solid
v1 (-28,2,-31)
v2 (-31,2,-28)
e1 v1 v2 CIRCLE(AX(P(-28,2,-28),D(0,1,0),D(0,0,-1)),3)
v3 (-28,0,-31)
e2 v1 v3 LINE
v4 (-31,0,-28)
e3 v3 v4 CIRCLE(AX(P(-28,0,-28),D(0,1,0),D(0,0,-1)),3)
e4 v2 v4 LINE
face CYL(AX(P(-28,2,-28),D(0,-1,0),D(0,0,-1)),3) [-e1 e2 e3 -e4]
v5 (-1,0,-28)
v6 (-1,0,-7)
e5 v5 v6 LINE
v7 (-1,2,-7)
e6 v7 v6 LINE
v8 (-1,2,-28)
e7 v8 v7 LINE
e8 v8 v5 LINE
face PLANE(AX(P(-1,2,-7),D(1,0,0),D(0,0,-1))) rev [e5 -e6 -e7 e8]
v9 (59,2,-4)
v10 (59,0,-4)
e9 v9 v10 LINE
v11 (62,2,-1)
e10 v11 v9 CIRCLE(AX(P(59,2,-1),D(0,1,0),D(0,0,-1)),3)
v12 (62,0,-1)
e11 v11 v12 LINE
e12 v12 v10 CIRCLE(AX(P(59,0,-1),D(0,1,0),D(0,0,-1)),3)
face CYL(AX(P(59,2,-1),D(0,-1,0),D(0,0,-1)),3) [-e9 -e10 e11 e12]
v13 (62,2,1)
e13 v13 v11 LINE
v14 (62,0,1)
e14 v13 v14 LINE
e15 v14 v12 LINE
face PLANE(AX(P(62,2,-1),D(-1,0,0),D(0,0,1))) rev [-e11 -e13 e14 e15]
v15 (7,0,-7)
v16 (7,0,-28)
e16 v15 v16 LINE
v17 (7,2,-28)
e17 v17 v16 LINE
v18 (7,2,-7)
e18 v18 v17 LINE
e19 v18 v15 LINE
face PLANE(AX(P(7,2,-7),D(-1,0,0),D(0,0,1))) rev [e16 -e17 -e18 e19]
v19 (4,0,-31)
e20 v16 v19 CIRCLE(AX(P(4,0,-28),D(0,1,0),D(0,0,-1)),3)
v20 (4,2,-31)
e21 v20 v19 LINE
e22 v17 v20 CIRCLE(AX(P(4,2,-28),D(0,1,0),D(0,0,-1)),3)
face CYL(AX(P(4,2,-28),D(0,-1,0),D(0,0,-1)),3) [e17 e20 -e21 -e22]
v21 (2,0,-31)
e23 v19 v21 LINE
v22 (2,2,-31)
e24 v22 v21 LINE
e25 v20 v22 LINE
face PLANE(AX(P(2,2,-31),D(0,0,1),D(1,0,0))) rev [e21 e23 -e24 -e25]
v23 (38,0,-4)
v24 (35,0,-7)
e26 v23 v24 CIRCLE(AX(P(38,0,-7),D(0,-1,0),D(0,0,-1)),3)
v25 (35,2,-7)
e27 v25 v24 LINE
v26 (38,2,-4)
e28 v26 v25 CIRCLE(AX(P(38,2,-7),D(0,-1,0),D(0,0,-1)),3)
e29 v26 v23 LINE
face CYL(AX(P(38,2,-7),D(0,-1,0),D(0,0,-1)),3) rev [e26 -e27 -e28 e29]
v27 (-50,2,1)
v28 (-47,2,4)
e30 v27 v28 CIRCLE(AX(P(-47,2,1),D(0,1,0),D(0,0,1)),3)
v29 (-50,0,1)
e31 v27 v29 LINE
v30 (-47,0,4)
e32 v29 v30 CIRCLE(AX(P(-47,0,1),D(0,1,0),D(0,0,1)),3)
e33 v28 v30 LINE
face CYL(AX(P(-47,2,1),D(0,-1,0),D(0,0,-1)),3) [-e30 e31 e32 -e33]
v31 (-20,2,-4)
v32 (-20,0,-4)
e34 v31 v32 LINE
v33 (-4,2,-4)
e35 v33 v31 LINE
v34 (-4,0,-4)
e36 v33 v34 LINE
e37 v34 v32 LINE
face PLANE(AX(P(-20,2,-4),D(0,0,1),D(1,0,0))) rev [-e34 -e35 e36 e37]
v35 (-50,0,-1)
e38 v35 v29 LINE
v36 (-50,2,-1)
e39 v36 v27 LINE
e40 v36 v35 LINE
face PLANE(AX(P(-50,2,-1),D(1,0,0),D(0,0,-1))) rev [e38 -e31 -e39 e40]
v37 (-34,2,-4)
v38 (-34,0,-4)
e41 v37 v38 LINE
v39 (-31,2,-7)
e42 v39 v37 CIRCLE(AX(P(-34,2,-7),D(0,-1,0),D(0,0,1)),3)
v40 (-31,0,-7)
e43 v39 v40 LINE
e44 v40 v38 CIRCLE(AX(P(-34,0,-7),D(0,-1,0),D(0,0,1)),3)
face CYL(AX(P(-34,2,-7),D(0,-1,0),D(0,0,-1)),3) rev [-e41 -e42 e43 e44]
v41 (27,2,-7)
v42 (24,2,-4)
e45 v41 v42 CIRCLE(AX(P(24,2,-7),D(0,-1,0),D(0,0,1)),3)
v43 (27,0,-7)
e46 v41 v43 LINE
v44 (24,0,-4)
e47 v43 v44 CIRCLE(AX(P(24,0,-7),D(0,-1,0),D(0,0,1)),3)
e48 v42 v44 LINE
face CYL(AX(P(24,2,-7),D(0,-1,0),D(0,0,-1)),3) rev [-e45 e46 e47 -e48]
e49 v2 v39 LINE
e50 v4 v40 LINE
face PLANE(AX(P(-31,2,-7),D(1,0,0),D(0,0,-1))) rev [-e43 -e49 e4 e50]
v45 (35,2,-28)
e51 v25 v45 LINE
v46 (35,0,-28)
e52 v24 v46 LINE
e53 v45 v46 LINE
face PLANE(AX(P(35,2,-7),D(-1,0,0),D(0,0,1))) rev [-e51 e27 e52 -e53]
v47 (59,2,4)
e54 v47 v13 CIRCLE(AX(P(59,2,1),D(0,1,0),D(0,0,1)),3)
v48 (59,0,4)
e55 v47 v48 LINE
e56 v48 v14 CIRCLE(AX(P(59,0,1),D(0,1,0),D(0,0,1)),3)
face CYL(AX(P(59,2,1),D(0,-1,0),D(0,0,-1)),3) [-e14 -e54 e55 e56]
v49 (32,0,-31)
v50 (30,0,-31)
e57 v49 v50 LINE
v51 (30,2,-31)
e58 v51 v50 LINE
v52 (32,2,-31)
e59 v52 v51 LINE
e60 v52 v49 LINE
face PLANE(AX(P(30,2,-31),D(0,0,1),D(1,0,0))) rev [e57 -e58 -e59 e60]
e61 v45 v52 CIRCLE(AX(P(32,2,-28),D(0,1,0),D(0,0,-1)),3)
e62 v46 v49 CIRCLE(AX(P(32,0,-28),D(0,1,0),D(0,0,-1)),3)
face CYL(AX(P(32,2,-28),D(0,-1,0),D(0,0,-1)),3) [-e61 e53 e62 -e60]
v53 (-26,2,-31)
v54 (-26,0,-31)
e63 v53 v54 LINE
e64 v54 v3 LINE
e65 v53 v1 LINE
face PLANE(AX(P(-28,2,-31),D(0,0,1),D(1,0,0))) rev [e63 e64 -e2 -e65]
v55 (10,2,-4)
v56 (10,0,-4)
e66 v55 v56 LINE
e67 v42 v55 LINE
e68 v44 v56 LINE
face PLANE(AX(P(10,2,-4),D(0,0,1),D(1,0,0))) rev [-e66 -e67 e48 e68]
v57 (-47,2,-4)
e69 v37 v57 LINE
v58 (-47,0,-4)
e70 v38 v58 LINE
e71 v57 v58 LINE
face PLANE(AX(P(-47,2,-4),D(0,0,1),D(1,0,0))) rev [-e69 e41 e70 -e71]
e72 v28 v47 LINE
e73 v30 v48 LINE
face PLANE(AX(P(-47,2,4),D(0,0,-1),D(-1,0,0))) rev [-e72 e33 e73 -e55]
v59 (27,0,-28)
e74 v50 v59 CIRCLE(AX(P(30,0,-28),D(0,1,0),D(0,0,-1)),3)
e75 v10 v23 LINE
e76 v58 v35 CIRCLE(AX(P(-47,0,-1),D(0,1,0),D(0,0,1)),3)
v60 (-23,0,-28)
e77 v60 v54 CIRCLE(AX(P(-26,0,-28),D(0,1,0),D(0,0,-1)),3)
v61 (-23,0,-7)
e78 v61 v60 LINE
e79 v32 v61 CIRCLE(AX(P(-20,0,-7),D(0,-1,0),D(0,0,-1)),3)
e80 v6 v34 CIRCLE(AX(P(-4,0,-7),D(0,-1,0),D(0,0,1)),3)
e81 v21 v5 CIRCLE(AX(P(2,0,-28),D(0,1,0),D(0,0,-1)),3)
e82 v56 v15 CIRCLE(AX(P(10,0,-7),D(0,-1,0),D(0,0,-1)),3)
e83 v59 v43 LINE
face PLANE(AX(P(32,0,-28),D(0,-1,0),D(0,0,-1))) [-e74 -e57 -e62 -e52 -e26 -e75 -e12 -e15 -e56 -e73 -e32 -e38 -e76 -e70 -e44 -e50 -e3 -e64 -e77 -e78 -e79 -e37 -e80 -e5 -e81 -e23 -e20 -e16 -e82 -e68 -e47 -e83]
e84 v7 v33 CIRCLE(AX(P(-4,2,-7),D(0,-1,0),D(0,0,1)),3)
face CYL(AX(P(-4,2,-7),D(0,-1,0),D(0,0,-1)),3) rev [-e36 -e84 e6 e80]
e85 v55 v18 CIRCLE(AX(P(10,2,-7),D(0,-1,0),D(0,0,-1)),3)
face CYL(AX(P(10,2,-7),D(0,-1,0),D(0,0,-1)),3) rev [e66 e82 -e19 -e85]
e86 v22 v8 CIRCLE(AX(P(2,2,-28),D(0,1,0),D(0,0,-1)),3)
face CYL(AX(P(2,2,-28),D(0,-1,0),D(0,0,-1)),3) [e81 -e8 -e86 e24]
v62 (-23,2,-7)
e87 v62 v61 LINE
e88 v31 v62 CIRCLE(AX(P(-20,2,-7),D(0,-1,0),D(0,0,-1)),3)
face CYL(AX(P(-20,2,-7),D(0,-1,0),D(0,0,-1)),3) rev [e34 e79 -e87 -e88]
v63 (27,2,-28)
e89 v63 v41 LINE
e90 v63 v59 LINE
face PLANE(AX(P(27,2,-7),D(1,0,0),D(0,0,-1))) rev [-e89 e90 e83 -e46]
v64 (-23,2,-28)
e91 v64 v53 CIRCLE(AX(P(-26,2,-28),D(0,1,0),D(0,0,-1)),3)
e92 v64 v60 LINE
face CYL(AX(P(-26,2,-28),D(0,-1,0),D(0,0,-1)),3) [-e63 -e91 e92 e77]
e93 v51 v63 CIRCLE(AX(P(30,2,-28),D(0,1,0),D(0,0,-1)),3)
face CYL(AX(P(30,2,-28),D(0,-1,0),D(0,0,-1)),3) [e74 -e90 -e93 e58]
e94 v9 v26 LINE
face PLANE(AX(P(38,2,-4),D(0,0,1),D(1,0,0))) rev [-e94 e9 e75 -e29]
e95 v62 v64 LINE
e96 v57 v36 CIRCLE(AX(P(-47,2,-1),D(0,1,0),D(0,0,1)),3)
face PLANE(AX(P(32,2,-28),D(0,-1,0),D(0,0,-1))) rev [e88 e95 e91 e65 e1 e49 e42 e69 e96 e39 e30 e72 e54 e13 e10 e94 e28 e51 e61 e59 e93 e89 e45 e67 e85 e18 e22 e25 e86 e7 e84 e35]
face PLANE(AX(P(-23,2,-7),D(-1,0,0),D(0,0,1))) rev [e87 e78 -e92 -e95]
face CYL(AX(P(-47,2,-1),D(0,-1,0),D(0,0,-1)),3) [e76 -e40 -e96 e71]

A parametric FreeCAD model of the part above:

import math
import FreeCAD as App
import Part
import Sketcher

doc = App.newDocument("Part")
body = doc.addObject("PartDesign::Body", "Body")

# Sketch on XZ plane
sketch1 = doc.addObject("Sketcher::SketchObject", "Sketch")
body.addObject(sketch1)
sketch1.AttachmentSupport = (doc.XZ_Plane, [""])
sketch1.MapMode = "FlatFace"
sketch1.addGeometry([
    Part.LineSegment(App.Vector(-4, -4, 0), App.Vector(-20, -4, 0)),  # 0
    Part.ArcOfCircle(Part.Circle(App.Vector(-20, -7, 0), App.Vector(0, 0, 1), 3), math.radians(90), math.radians(180)),  # 1
    Part.LineSegment(App.Vector(-23, -7, 0), App.Vector(-23, -28, 0)),  # 2
    Part.ArcOfCircle(Part.Circle(App.Vector(-26, -28, 0), App.Vector(0, 0, 1), 3), math.radians(-90), math.radians(0)),  # 3
    Part.LineSegment(App.Vector(-26, -31, 0), App.Vector(-28, -31, 0)),  # 4
    Part.ArcOfCircle(Part.Circle(App.Vector(-28, -28, 0), App.Vector(0, 0, 1), 3), math.radians(180), math.radians(270)),  # 5
    Part.LineSegment(App.Vector(-31, -28, 0), App.Vector(-31, -7, 0)),  # 6
    Part.ArcOfCircle(Part.Circle(App.Vector(-34, -7, 0), App.Vector(0, 0, 1), 3), math.radians(0), math.radians(90)),  # 7
    Part.LineSegment(App.Vector(-34, -4, 0), App.Vector(-47, -4, 0)),  # 8
    Part.ArcOfCircle(Part.Circle(App.Vector(-47, -1, 0), App.Vector(0, 0, 1), 3), math.radians(180), math.radians(270)),  # 9
    Part.LineSegment(App.Vector(-50, -1, 0), App.Vector(-50, 1, 0)),  # 10
    Part.ArcOfCircle(Part.Circle(App.Vector(-47, 1, 0), App.Vector(0, 0, 1), 3), math.radians(90), math.radians(180)),  # 11
    Part.LineSegment(App.Vector(-47, 4, 0), App.Vector(59, 4, 0)),  # 12
    Part.ArcOfCircle(Part.Circle(App.Vector(59, 1, 0), App.Vector(0, 0, 1), 3), math.radians(0), math.radians(90)),  # 13
    Part.LineSegment(App.Vector(62, 1, 0), App.Vector(62, -1, 0)),  # 14
    Part.ArcOfCircle(Part.Circle(App.Vector(59, -1, 0), App.Vector(0, 0, 1), 3), math.radians(-90), math.radians(0)),  # 15
    Part.LineSegment(App.Vector(59, -4, 0), App.Vector(38, -4, 0)),  # 16
    Part.ArcOfCircle(Part.Circle(App.Vector(38, -7, 0), App.Vector(0, 0, 1), 3), math.radians(90), math.radians(180)),  # 17
    Part.LineSegment(App.Vector(35, -7, 0), App.Vector(35, -28, 0)),  # 18
    Part.ArcOfCircle(Part.Circle(App.Vector(32, -28, 0), App.Vector(0, 0, 1), 3), math.radians(-90), math.radians(0)),  # 19
    Part.LineSegment(App.Vector(32, -31, 0), App.Vector(30, -31, 0)),  # 20
    Part.ArcOfCircle(Part.Circle(App.Vector(30, -28, 0), App.Vector(0, 0, 1), 3), math.radians(180), math.radians(270)),  # 21
    Part.LineSegment(App.Vector(27, -28, 0), App.Vector(27, -7, 0)),  # 22
    Part.ArcOfCircle(Part.Circle(App.Vector(24, -7, 0), App.Vector(0, 0, 1), 3), math.radians(0), math.radians(90)),  # 23
    Part.LineSegment(App.Vector(24, -4, 0), App.Vector(10, -4, 0)),  # 24
    Part.ArcOfCircle(Part.Circle(App.Vector(10, -7, 0), App.Vector(0, 0, 1), 3), math.radians(90), math.radians(180)),  # 25
    Part.LineSegment(App.Vector(7, -7, 0), App.Vector(7, -28, 0)),  # 26
    Part.ArcOfCircle(Part.Circle(App.Vector(4, -28, 0), App.Vector(0, 0, 1), 3), math.radians(-90), math.radians(0)),  # 27
    Part.LineSegment(App.Vector(4, -31, 0), App.Vector(2, -31, 0)),  # 28
    Part.ArcOfCircle(Part.Circle(App.Vector(2, -28, 0), App.Vector(0, 0, 1), 3), math.radians(180), math.radians(270)),  # 29
    Part.LineSegment(App.Vector(-1, -28, 0), App.Vector(-1, -7, 0)),  # 30
    Part.ArcOfCircle(Part.Circle(App.Vector(-4, -7, 0), App.Vector(0, 0, 1), 3), math.radians(0), math.radians(90)),  # 31
], False)
sketch1.addConstraint([
    Sketcher.Constraint("Tangent", 0, 2, 1, 1),
    Sketcher.Constraint("Tangent", 1, 2, 2, 1),
    Sketcher.Constraint("Tangent", 2, 2, 3, 2),
    Sketcher.Constraint("Tangent", 3, 1, 4, 1),
    Sketcher.Constraint("Tangent", 4, 2, 5, 2),
    Sketcher.Constraint("Tangent", 5, 1, 6, 1),
    Sketcher.Constraint("Tangent", 6, 2, 7, 1),
    Sketcher.Constraint("Tangent", 7, 2, 8, 1),
    Sketcher.Constraint("Tangent", 8, 2, 9, 2),
    Sketcher.Constraint("Tangent", 9, 1, 10, 1),
    Sketcher.Constraint("Tangent", 10, 2, 11, 2),
    Sketcher.Constraint("Tangent", 11, 1, 12, 1),
    Sketcher.Constraint("Tangent", 12, 2, 13, 2),
    Sketcher.Constraint("Tangent", 13, 1, 14, 1),
    Sketcher.Constraint("Tangent", 14, 2, 15, 2),
    Sketcher.Constraint("Tangent", 15, 1, 16, 1),
    Sketcher.Constraint("Tangent", 16, 2, 17, 1),
    Sketcher.Constraint("Tangent", 17, 2, 18, 1),
    Sketcher.Constraint("Tangent", 18, 2, 19, 2),
    Sketcher.Constraint("Tangent", 19, 1, 20, 1),
    Sketcher.Constraint("Tangent", 20, 2, 21, 2),
    Sketcher.Constraint("Tangent", 21, 1, 22, 1),
    Sketcher.Constraint("Tangent", 22, 2, 23, 1),
    Sketcher.Constraint("Tangent", 23, 2, 24, 1),
    Sketcher.Constraint("Tangent", 24, 2, 25, 1),
    Sketcher.Constraint("Tangent", 25, 2, 26, 1),
    Sketcher.Constraint("Tangent", 26, 2, 27, 2),
    Sketcher.Constraint("Tangent", 27, 1, 28, 1),
    Sketcher.Constraint("Tangent", 28, 2, 29, 2),
    Sketcher.Constraint("Tangent", 29, 1, 30, 1),
    Sketcher.Constraint("Tangent", 30, 2, 31, 1),
    Sketcher.Constraint("Tangent", 31, 2, 0, 1),
    Sketcher.Constraint("Horizontal", 0),
    Sketcher.Constraint("Vertical", 2),
    Sketcher.Constraint("Horizontal", 4),
    Sketcher.Constraint("Vertical", 6),
    Sketcher.Constraint("Horizontal", 8),
    Sketcher.Constraint("Vertical", 10),
    Sketcher.Constraint("Horizontal", 12),
    Sketcher.Constraint("Vertical", 14),
    Sketcher.Constraint("Horizontal", 16),
    Sketcher.Constraint("Vertical", 18),
    Sketcher.Constraint("Horizontal", 20),
    Sketcher.Constraint("Vertical", 22),
    Sketcher.Constraint("Horizontal", 24),
    Sketcher.Constraint("Vertical", 26),
    Sketcher.Constraint("Horizontal", 28),
    Sketcher.Constraint("Vertical", 30),
    Sketcher.Constraint("Equal", 1, 3),
    Sketcher.Constraint("Equal", 3, 5),
    Sketcher.Constraint("Equal", 5, 7),
    Sketcher.Constraint("Equal", 7, 9),
    Sketcher.Constraint("Equal", 9, 11),
    Sketcher.Constraint("Equal", 11, 13),
    Sketcher.Constraint("Equal", 13, 15),
    Sketcher.Constraint("Equal", 15, 17),
    Sketcher.Constraint("Equal", 17, 19),
    Sketcher.Constraint("Equal", 19, 21),
    Sketcher.Constraint("Equal", 21, 23),
    Sketcher.Constraint("Equal", 23, 25),
    Sketcher.Constraint("Equal", 25, 27),
    Sketcher.Constraint("Equal", 27, 29),
    Sketcher.Constraint("Equal", 29, 31),
    Sketcher.Constraint("Horizontal", 1, 3, 7, 3),
    Sketcher.Constraint("Horizontal", 9, 3, 15, 3),
    Sketcher.Constraint("Horizontal", 5, 3, 19, 3),
    Sketcher.Constraint("Horizontal", 17, 3, 23, 3),
    Sketcher.Constraint("Horizontal", 21, 3, 27, 3),
    Sketcher.Constraint("Equal", 4, 20),
    Sketcher.Constraint("Equal", 20, 28),
    Sketcher.Constraint("Equal", 16, 2),
    Sketcher.Constraint("Equal", 28, 10),
    Sketcher.Constraint("Radius", 1, 3.0),
    Sketcher.Constraint("DistanceX", 0, 2, 0, 1, 16.0),
    Sketcher.Constraint("DistanceX", 4, 2, 4, 1, 2.0),
    Sketcher.Constraint("DistanceX", 8, 2, 8, 1, 13.0),
    Sketcher.Constraint("DistanceX", 12, 1, 12, 2, 106.0),
    Sketcher.Constraint("DistanceX", 16, 2, 16, 1, 21.0),
    Sketcher.Constraint("DistanceX", 1, 3, -1, 1, 20.0),
    Sketcher.Constraint("DistanceY", 1, 3, -1, 1, 7.0),
])
pad1 = doc.addObject("PartDesign::Pad", "Pad")
body.addObject(pad1)
pad1.Profile = sketch1
pad1.Length = 2
pad1.Reversed = True

doc.recompute()
